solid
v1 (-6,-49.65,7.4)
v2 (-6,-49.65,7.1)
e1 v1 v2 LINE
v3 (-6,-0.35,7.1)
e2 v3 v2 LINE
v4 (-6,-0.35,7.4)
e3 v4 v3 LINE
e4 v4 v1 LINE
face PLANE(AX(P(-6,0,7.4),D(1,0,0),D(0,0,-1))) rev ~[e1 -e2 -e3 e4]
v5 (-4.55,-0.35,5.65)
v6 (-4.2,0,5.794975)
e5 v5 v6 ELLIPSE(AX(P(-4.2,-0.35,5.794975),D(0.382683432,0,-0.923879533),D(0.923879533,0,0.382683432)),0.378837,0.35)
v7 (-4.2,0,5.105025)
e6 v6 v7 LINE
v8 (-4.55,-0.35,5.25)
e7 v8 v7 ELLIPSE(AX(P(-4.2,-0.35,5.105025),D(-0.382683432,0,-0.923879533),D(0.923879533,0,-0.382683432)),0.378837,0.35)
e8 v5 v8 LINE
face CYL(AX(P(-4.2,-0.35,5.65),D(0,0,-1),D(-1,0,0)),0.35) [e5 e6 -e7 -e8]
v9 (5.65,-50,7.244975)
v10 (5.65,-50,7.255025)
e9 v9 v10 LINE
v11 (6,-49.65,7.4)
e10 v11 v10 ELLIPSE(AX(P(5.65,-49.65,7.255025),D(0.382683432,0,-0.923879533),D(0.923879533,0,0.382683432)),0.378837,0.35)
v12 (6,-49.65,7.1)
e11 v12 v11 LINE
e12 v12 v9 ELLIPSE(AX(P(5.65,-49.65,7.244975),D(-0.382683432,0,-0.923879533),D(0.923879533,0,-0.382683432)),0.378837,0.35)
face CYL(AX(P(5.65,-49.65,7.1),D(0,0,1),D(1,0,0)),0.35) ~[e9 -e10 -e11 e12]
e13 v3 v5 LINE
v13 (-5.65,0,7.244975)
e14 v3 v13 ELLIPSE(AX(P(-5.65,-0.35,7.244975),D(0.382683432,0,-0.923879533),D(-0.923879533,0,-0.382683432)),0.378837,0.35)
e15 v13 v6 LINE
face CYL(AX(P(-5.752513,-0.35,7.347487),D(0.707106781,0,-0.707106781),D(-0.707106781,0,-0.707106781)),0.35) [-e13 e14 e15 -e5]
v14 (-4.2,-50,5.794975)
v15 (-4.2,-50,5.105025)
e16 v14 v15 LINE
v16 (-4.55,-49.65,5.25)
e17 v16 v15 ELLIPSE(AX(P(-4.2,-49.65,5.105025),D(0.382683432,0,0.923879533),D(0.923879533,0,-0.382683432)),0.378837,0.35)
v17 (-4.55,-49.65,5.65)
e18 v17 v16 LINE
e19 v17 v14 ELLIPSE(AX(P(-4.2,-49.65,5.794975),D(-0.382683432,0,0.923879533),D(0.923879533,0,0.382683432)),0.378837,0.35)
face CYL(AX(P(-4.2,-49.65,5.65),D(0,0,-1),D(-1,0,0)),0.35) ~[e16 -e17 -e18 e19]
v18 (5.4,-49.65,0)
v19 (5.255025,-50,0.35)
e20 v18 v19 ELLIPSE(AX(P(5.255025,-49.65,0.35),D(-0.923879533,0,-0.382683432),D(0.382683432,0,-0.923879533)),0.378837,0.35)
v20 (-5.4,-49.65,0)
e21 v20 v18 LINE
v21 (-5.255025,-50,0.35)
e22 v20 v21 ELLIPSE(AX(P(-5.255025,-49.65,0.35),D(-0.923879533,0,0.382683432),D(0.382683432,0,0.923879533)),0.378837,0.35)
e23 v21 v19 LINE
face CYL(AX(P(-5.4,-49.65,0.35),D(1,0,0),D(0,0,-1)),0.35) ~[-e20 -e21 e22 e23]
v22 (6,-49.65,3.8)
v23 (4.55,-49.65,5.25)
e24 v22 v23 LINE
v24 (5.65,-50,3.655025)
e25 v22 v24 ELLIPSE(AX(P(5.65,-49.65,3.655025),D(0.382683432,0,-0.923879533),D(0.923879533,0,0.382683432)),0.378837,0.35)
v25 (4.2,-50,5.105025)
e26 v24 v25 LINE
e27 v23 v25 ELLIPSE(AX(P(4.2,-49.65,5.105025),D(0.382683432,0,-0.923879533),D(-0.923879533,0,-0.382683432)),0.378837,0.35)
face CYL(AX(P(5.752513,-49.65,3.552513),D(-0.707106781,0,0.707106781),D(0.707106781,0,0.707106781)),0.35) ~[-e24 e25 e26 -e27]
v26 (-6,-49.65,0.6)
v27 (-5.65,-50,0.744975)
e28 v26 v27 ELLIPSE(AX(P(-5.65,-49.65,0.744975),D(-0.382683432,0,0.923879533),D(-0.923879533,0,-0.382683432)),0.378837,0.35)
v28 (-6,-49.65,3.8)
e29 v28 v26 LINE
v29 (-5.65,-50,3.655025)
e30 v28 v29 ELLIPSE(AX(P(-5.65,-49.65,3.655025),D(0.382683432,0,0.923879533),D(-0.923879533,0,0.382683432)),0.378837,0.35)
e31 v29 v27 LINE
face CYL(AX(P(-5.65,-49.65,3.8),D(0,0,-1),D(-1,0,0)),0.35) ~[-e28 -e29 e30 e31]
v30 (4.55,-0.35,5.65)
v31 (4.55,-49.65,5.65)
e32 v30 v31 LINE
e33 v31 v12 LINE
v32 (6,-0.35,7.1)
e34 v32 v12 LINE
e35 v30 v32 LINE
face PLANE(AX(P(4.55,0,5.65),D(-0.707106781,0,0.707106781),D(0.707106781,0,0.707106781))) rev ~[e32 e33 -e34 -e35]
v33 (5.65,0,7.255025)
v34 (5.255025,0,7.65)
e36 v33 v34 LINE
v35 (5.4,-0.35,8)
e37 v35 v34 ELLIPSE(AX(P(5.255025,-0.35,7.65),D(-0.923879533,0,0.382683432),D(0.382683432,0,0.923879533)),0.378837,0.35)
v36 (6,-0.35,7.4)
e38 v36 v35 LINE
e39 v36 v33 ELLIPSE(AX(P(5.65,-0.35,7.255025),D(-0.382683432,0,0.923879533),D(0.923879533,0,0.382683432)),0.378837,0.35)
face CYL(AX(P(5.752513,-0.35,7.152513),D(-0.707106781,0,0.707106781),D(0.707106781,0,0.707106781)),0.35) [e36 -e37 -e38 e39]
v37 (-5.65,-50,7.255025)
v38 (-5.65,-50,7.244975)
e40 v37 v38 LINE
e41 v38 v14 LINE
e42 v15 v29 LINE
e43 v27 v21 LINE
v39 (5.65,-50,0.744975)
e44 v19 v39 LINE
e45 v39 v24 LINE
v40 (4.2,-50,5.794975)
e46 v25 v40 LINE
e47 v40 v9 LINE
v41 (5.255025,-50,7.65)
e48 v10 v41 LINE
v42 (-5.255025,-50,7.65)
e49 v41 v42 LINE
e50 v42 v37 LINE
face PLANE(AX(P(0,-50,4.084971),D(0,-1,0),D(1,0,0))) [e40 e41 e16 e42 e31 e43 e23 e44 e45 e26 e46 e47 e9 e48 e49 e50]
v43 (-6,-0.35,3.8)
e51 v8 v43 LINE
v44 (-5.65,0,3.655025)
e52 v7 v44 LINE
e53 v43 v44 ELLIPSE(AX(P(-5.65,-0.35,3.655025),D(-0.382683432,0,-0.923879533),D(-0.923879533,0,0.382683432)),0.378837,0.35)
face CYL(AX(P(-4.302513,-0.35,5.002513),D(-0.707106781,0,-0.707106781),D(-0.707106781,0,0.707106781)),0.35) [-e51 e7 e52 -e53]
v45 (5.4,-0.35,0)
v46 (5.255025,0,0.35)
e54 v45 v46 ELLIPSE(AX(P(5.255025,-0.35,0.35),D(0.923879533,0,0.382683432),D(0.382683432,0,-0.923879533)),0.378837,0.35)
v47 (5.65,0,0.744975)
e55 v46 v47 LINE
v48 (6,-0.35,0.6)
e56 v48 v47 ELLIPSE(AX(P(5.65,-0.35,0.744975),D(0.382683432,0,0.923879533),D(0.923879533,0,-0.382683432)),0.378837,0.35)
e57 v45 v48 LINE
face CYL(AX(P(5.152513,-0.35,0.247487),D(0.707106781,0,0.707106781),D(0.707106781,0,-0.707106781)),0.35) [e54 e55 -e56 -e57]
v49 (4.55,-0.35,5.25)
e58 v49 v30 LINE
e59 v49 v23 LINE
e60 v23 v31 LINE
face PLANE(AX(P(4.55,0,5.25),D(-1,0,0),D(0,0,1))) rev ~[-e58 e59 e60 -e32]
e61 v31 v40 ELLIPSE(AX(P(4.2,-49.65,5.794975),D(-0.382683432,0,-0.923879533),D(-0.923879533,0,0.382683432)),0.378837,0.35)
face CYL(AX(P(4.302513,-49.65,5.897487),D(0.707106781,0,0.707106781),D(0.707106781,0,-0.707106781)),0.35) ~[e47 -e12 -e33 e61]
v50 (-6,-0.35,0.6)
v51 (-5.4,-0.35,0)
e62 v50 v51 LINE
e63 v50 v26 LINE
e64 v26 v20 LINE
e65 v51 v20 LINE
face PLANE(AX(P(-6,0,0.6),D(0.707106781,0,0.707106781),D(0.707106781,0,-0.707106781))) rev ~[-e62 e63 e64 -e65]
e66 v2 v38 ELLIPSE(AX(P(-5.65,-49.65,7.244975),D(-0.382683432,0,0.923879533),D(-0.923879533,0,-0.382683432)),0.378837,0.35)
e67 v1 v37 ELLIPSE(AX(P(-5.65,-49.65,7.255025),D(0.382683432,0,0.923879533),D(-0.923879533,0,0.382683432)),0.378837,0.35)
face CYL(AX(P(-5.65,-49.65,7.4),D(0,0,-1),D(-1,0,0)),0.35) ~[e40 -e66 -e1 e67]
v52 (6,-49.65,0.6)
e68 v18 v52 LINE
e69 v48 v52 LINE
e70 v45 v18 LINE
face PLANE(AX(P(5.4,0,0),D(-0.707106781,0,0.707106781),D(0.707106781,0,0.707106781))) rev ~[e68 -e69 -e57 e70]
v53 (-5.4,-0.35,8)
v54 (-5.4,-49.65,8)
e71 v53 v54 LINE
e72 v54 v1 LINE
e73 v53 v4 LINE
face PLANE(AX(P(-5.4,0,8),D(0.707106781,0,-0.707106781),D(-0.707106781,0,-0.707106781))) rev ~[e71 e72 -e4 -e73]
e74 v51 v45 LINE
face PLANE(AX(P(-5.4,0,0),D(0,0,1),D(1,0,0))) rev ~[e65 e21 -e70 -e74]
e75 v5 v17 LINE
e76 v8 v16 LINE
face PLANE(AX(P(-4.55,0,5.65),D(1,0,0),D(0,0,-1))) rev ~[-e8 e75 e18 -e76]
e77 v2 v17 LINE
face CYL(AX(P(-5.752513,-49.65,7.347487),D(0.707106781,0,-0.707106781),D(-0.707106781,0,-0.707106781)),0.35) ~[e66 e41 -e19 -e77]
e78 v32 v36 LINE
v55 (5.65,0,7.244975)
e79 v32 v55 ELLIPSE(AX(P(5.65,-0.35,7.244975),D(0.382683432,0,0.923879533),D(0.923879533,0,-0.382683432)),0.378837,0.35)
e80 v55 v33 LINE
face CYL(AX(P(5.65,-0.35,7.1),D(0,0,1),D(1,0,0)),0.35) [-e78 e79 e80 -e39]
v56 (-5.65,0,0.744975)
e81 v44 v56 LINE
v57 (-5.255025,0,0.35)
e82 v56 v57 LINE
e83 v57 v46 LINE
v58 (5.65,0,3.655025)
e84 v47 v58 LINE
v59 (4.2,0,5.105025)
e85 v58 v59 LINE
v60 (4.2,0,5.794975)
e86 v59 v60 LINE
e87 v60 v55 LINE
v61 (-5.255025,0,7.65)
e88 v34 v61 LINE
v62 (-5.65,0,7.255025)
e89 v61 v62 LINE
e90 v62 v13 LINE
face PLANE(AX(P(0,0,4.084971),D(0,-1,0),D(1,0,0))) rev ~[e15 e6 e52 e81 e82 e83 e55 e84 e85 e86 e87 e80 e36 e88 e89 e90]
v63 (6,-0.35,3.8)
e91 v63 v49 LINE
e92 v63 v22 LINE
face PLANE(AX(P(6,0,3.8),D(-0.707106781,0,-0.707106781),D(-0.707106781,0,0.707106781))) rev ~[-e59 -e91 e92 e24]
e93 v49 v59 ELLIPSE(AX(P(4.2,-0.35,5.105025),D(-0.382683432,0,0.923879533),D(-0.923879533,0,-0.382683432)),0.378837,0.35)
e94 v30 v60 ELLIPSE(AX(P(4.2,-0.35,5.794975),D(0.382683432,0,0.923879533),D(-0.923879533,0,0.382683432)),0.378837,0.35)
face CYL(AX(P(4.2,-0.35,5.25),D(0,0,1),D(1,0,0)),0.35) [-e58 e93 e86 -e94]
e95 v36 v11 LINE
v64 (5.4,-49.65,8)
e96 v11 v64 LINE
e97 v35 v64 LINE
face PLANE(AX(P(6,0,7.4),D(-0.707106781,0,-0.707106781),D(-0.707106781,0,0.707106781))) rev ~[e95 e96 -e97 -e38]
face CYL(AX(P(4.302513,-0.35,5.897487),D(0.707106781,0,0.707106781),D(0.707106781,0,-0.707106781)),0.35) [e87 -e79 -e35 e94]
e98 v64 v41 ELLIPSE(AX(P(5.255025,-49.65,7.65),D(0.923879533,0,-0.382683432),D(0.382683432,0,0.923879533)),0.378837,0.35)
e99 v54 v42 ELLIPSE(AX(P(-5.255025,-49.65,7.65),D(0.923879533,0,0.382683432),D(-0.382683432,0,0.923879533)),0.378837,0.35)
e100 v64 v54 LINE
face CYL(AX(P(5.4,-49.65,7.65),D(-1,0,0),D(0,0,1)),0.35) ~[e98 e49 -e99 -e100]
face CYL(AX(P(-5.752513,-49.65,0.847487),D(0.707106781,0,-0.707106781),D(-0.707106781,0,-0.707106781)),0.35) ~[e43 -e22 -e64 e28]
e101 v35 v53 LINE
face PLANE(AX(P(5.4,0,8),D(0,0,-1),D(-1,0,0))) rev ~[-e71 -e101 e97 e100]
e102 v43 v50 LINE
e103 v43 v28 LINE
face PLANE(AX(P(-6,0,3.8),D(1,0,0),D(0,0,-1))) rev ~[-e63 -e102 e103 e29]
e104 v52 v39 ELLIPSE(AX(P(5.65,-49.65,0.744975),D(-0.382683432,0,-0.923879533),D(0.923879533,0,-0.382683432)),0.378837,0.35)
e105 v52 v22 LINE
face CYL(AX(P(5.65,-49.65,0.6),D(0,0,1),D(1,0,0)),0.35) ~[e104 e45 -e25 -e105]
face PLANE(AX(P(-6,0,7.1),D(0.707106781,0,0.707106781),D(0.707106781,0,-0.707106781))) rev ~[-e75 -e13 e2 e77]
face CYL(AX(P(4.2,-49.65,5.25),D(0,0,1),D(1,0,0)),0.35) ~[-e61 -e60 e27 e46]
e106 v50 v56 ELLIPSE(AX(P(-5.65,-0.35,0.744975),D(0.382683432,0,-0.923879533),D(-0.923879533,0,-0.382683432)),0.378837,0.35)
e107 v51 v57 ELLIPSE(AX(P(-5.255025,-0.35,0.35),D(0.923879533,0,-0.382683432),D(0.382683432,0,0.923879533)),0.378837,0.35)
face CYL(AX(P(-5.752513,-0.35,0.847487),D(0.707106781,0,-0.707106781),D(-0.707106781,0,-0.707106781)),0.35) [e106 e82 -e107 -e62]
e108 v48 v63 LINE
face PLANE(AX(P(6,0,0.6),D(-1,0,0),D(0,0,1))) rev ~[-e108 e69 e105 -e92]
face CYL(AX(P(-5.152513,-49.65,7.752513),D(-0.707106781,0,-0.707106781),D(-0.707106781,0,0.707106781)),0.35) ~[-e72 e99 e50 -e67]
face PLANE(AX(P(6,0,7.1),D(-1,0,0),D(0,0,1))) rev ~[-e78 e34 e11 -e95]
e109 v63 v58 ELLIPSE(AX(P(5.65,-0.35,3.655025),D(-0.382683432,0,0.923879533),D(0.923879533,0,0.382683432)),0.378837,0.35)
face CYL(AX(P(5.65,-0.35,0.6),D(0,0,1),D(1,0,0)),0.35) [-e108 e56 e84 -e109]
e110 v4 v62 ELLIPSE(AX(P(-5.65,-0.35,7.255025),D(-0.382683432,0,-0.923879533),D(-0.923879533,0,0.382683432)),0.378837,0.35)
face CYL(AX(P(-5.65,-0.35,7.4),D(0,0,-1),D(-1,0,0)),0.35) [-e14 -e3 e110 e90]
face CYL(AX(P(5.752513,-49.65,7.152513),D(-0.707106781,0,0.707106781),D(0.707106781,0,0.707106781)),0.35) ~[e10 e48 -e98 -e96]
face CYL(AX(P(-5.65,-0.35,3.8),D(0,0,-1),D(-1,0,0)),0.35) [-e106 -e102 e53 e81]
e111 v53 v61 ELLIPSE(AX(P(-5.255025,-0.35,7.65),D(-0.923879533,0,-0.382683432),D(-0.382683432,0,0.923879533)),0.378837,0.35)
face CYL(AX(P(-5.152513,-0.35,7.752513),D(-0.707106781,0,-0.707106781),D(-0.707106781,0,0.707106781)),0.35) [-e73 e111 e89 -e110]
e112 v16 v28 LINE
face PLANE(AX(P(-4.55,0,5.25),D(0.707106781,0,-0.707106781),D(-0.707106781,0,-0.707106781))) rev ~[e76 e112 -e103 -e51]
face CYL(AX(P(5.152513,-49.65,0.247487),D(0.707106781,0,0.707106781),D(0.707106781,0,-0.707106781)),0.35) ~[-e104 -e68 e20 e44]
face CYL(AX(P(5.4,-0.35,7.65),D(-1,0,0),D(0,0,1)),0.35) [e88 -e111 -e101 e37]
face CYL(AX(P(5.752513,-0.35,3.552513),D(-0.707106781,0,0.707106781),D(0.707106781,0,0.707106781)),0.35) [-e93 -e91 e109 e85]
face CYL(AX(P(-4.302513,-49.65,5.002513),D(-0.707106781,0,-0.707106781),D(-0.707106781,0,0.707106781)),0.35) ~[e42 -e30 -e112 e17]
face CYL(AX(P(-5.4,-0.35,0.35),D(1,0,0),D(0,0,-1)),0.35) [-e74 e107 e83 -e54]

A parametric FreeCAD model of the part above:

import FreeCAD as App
import Part
import Sketcher


def edges_at(feature, points):
    """Names of the edges that pass closest to the given points."""
    edges = feature.Shape.Edges
    near = lambda p: min(range(len(edges)), key=lambda i: edges[i].distToShape(Part.Vertex(*p))[0])
    return sorted({f"Edge{near(p) + 1}" for p in points})

doc = App.newDocument("Part")
body = doc.addObject("PartDesign::Body", "Body")

# Sketch on XZ plane
sketch1 = body.newObject("Sketcher::SketchObject", "Sketch")
sketch1.AttachmentSupport = (doc.getObject("XZ_Plane"), [""])
sketch1.MapMode = "FlatFace"
sketch1.addGeometry(Part.LineSegment(App.Vector(-5.4, 0, 0), App.Vector(5.4, 0, 0)), False)
sketch1.addGeometry(Part.LineSegment(App.Vector(5.4, 0, 0), App.Vector(6, 0.6, 0)), False)
sketch1.addGeometry(Part.LineSegment(App.Vector(6, 0.6, 0), App.Vector(6, 3.8, 0)), False)
sketch1.addGeometry(Part.LineSegment(App.Vector(6, 3.8, 0), App.Vector(4.55, 5.25, 0)), False)
sketch1.addGeometry(Part.LineSegment(App.Vector(4.55, 5.25, 0), App.Vector(4.55, 5.65, 0)), False)
sketch1.addGeometry(Part.LineSegment(App.Vector(4.55, 5.65, 0), App.Vector(6, 7.1, 0)), False)
sketch1.addGeometry(Part.LineSegment(App.Vector(6, 7.1, 0), App.Vector(6, 7.4, 0)), False)
sketch1.addGeometry(Part.LineSegment(App.Vector(6, 7.4, 0), App.Vector(5.4, 8, 0)), False)
sketch1.addGeometry(Part.LineSegment(App.Vector(5.4, 8, 0), App.Vector(-5.4, 8, 0)), False)
sketch1.addGeometry(Part.LineSegment(App.Vector(-5.4, 8, 0), App.Vector(-6, 7.4, 0)), False)
sketch1.addGeometry(Part.LineSegment(App.Vector(-6, 7.4, 0), App.Vector(-6, 7.1, 0)), False)
sketch1.addGeometry(Part.LineSegment(App.Vector(-6, 7.1, 0), App.Vector(-4.55, 5.65, 0)), False)
sketch1.addGeometry(Part.LineSegment(App.Vector(-4.55, 5.65, 0), App.Vector(-4.55, 5.25, 0)), False)
sketch1.addGeometry(Part.LineSegment(App.Vector(-4.55, 5.25, 0), App.Vector(-6, 3.8, 0)), False)
sketch1.addGeometry(Part.LineSegment(App.Vector(-6, 3.8, 0), App.Vector(-6, 0.6, 0)), False)
sketch1.addGeometry(Part.LineSegment(App.Vector(-6, 0.6, 0), App.Vector(-5.4, 0, 0)), False)
sketch1.addConstraint(Sketcher.Constraint("Coincident", 0, 2, 1, 1))
sketch1.addConstraint(Sketcher.Constraint("Coincident", 1, 2, 2, 1))
sketch1.addConstraint(Sketcher.Constraint("Coincident", 2, 2, 3, 1))
sketch1.addConstraint(Sketcher.Constraint("Coincident", 3, 2, 4, 1))
sketch1.addConstraint(Sketcher.Constraint("Coincident", 4, 2, 5, 1))
sketch1.addConstraint(Sketcher.Constraint("Coincident", 5, 2, 6, 1))
sketch1.addConstraint(Sketcher.Constraint("Coincident", 6, 2, 7, 1))
sketch1.addConstraint(Sketcher.Constraint("Coincident", 7, 2, 8, 1))
sketch1.addConstraint(Sketcher.Constraint("Coincident", 8, 2, 9, 1))
sketch1.addConstraint(Sketcher.Constraint("Coincident", 9, 2, 10, 1))
sketch1.addConstraint(Sketcher.Constraint("Coincident", 10, 2, 11, 1))
sketch1.addConstraint(Sketcher.Constraint("Coincident", 11, 2, 12, 1))
sketch1.addConstraint(Sketcher.Constraint("Coincident", 12, 2, 13, 1))
sketch1.addConstraint(Sketcher.Constraint("Coincident", 13, 2, 14, 1))
sketch1.addConstraint(Sketcher.Constraint("Coincident", 14, 2, 15, 1))
sketch1.addConstraint(Sketcher.Constraint("Coincident", 15, 2, 0, 1))
sketch1.addConstraint(Sketcher.Constraint("Horizontal", 0))
sketch1.addConstraint(Sketcher.Constraint("Vertical", 2))
sketch1.addConstraint(Sketcher.Constraint("Vertical", 4))
sketch1.addConstraint(Sketcher.Constraint("Vertical", 6))
sketch1.addConstraint(Sketcher.Constraint("Horizontal", 8))
sketch1.addConstraint(Sketcher.Constraint("Vertical", 10))
sketch1.addConstraint(Sketcher.Constraint("Vertical", 12))
sketch1.addConstraint(Sketcher.Constraint("Vertical", 14))
sketch1.addConstraint(Sketcher.Constraint("Symmetric", 0, 2, 15, 2, -1, 1))
sketch1.addConstraint(Sketcher.Constraint("Symmetric", 6, 2, 9, 2, -2))
sketch1.addConstraint(Sketcher.Constraint("Symmetric", 4, 2, 11, 2, -2))
sketch1.addConstraint(Sketcher.Constraint("Symmetric", 2, 2, 13, 2, -2))
sketch1.addConstraint(Sketcher.Constraint("Perpendicular", 1, 3))
sketch1.addConstraint(Sketcher.Constraint("Perpendicular", 3, 5))
sketch1.addConstraint(Sketcher.Constraint("Perpendicular", 5, 7))
sketch1.addConstraint(Sketcher.Constraint("Perpendicular", 7, 9))
sketch1.addConstraint(Sketcher.Constraint("Perpendicular", 9, 11))
sketch1.addConstraint(Sketcher.Constraint("Perpendicular", 11, 13))
sketch1.addConstraint(Sketcher.Constraint("Perpendicular", 13, 15))
sketch1.addConstraint(Sketcher.Constraint("Horizontal", 5, 2, 10, 2))
sketch1.addConstraint(Sketcher.Constraint("Vertical", 2, 2, 5, 2))
sketch1.addConstraint(Sketcher.Constraint("Vertical", 0, 2, 7, 2))
sketch1.addConstraint(Sketcher.Constraint("DistanceX", 0, 1, 0, 2, 10.8))
sketch1.addConstraint(Sketcher.Constraint("DistanceY", 2, 1, 2, 2, 3.2))
sketch1.addConstraint(Sketcher.Constraint("DistanceY", 4, 1, 4, 2, 0.4))
sketch1.addConstraint(Sketcher.Constraint("DistanceY", 6, 1, 6, 2, 0.3))
sketch1.addConstraint(Sketcher.Constraint("DistanceX", -1, 1, 1, 2, 6.0))
sketch1.addConstraint(Sketcher.Constraint("DistanceY", -1, 1, 7, 2, 8.0))
pad1 = body.newObject("PartDesign::Pad", "Pad")
pad1.Profile = sketch1
pad1.Length = 50
doc.recompute()

fillet = body.newObject("PartDesign::Fillet", "Fillet")
fillet.Base = (pad1, edges_at(pad1, [
    (0, 0, 0),
    (5.7, 0, 0.3),
    (6, 0, 2.2),
    (5.275, 0, 4.525),
    (4.55, 0, 5.45),
    (5.275, 0, 6.375),
    (6, 0, 7.25),
    (5.7, 0, 7.7),
    (0, 0, 8),
    (-5.7, 0, 7.7),
    (-6, 0, 7.25),
    (-5.275, 0, 6.375),
    (-4.55, 0, 5.45),
    (-5.275, 0, 4.525),
    (-6, 0, 2.2),
    (-5.7, 0, 0.3),
    (0, -50, 0),
    (5.7, -50, 0.3),
    (6, -50, 2.2),
    (5.275, -50, 4.525),
    (4.55, -50, 5.45),
    (5.275, -50, 6.375),
    (6, -50, 7.25),
    (5.7, -50, 7.7),
    (0, -50, 8),
    (-5.7, -50, 7.7),
    (-6, -50, 7.25),
    (-5.275, -50, 6.375),
    (-4.55, -50, 5.45),
    (-5.275, -50, 4.525),
    (-6, -50, 2.2),
    (-5.7, -50, 0.3),
]))
fillet.Radius = 0.35

doc.recompute()
